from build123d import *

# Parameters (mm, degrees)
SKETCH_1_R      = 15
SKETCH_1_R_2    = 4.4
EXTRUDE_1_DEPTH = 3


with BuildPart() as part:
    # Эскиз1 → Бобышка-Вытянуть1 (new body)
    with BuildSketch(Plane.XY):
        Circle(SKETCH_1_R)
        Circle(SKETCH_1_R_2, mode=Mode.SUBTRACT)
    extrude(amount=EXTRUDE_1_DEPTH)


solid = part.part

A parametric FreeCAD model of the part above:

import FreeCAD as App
import Part
import Sketcher
from FreeCAD import Vector

doc = App.newDocument("Part")
body = doc.addObject("PartDesign::Body", "Body")

sketch1 = doc.addObject("Sketcher::SketchObject", "Sketch")
body.addObject(sketch1)
sketch1.AttachmentSupport = (doc.XY_Plane, [""])
sketch1.MapMode = "FlatFace"
sketch1.addGeometry(Part.Circle(Vector(0, 0, 0), Vector(0, 0, 1), 15), False)
sketch1.addGeometry(Part.Circle(Vector(0, 0, 0), Vector(0, 0, 1), 4.4), False)
sketch1.addConstraint(Sketcher.Constraint("Coincident", 0, 3, -1, 1))
sketch1.addConstraint(Sketcher.Constraint("Coincident", 1, 3, -1, 1))
sketch1.addConstraint(Sketcher.Constraint("Diameter", 0, 30.0))
sketch1.addConstraint(Sketcher.Constraint("Diameter", 1, 8.8))
pad1 = doc.addObject("PartDesign::Pad", "Pad")
body.addObject(pad1)
pad1.Profile = sketch1
pad1.Length = 3

doc.recompute()
